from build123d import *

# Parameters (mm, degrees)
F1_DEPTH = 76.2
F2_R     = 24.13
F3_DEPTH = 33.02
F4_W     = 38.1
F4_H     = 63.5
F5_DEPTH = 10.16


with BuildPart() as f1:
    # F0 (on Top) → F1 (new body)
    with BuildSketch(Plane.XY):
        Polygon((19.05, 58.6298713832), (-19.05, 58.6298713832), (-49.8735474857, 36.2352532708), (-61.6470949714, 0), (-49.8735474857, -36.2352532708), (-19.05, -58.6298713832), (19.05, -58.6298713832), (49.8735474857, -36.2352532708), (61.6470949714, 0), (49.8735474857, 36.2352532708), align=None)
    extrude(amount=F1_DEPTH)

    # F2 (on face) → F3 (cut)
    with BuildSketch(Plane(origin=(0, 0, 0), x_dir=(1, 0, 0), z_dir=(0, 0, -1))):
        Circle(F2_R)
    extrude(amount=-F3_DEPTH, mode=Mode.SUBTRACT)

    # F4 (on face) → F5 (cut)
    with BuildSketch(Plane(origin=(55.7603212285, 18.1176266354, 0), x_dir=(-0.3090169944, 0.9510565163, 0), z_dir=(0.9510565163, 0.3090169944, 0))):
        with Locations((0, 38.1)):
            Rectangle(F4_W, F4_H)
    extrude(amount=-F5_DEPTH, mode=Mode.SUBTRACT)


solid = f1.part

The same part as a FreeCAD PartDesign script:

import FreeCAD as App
import Part
import Sketcher

V = App.Vector
Q = App.Units.Quantity

doc = App.newDocument("Part")
body = doc.addObject("PartDesign::Body", "Body")

sketch1 = doc.addObject("Sketcher::SketchObject", "Sketch")
body.addObject(sketch1)
sketch1.AttachmentSupport = (doc.XY_Plane, [""])
sketch1.MapMode = "FlatFace"
sketch1.addGeometry(Part.LineSegment(V(19.05, 58.629871, 0), V(-19.05, 58.629871, 0)), False)
sketch1.addGeometry(Part.LineSegment(V(-19.05, 58.629871, 0), V(-49.873547, 36.235253, 0)), False)
sketch1.addGeometry(Part.LineSegment(V(-49.873547, 36.235253, 0), V(-61.647095, 0, 0)), False)
sketch1.addGeometry(Part.LineSegment(V(-61.647095, 0, 0), V(-49.873547, -36.235253, 0)), False)
sketch1.addGeometry(Part.LineSegment(V(-49.873547, -36.235253, 0), V(-19.05, -58.629871, 0)), False)
sketch1.addGeometry(Part.LineSegment(V(-19.05, -58.629871, 0), V(19.05, -58.629871, 0)), False)
sketch1.addGeometry(Part.LineSegment(V(19.05, -58.629871, 0), V(49.873547, -36.235253, 0)), False)
sketch1.addGeometry(Part.LineSegment(V(49.873547, -36.235253, 0), V(61.647095, 0, 0)), False)
sketch1.addGeometry(Part.LineSegment(V(61.647095, 0, 0), V(49.873547, 36.235253, 0)), False)
sketch1.addGeometry(Part.LineSegment(V(49.873547, 36.235253, 0), V(19.05, 58.629871, 0)), False)
sketch1.addConstraint(Sketcher.Constraint("Coincident", 0, 2, 1, 1))
sketch1.addConstraint(Sketcher.Constraint("Coincident", 1, 2, 2, 1))
sketch1.addConstraint(Sketcher.Constraint("Coincident", 2, 2, 3, 1))
sketch1.addConstraint(Sketcher.Constraint("Coincident", 3, 2, 4, 1))
sketch1.addConstraint(Sketcher.Constraint("Coincident", 4, 2, 5, 1))
sketch1.addConstraint(Sketcher.Constraint("Coincident", 5, 2, 6, 1))
sketch1.addConstraint(Sketcher.Constraint("Coincident", 6, 2, 7, 1))
sketch1.addConstraint(Sketcher.Constraint("Coincident", 7, 2, 8, 1))
sketch1.addConstraint(Sketcher.Constraint("Coincident", 8, 2, 9, 1))
sketch1.addConstraint(Sketcher.Constraint("Coincident", 9, 2, 0, 1))
sketch1.addConstraint(Sketcher.Constraint("Horizontal", 0))
sketch1.addConstraint(Sketcher.Constraint("Horizontal", 5))
sketch1.addConstraint(Sketcher.Constraint("Symmetric", 0, 2, 5, 2, -1, 1))
sketch1.addConstraint(Sketcher.Constraint("Symmetric", 1, 2, 6, 2, -1, 1))
sketch1.addConstraint(Sketcher.Constraint("Symmetric", 2, 2, 7, 2, -1, 1))
sketch1.addConstraint(Sketcher.Constraint("Symmetric", 3, 2, 8, 2, -1, 1))
sketch1.addConstraint(Sketcher.Constraint("Symmetric", 3, 2, 6, 2, -2))
sketch1.addConstraint(Sketcher.Constraint("PointOnObject", 2, 2, -1))
sketch1.addConstraint(Sketcher.Constraint("Parallel", 4, 9))
sketch1.addConstraint(Sketcher.Constraint("Vertical", 0, 2, 4, 2))
sketch1.addConstraint(Sketcher.Constraint("Equal", 1, 2))
sketch1.addConstraint(Sketcher.Constraint("DistanceX", 0, 2, 0, 1, Q("1.5 in")))
sketch1.addConstraint(Sketcher.Constraint("Angle", 1, Q("-144 deg")))
sketch1.addConstraint(Sketcher.Constraint("Angle", 2, Q("-108 deg")))
sketch1.addConstraint(Sketcher.Constraint("Distance", 1, Q("1.5 in")))
pad1 = doc.addObject("PartDesign::Pad", "Pad")
body.addObject(pad1)
pad1.Profile = sketch1
pad1.Length = Q("3 in")

sketch2 = doc.addObject("Sketcher::SketchObject", "Sketch001")
body.addObject(sketch2)
sketch2.AttachmentSupport = (doc.XY_Plane, [""])
sketch2.MapMode = "FlatFace"
sketch2.addGeometry(Part.Circle(V(0, 0, 0), V(0, 0, 1), 24.13), False)
sketch2.addConstraint(Sketcher.Constraint("Coincident", 0, 3, -1, 1))
sketch2.addConstraint(Sketcher.Constraint("Diameter", 0, Q("1.9 in")))
pocket1 = doc.addObject("PartDesign::Pocket", "Pocket")
body.addObject(pocket1)
pocket1.Profile = sketch2
pocket1.Length = Q("1.3 in")
pocket1.Reversed = True

sketch3 = doc.addObject("Sketcher::SketchObject", "Sketch002")
body.addObject(sketch3)
sketch3.Placement = App.Placement(V(55.760321, 18.117627, 0), App.Rotation(V(-0.309016994, 0.951056516, 0), V(0, 0, 0.999999999), V(0.951056516, 0.309016994, 0), "ZXY"))
sketch3.addGeometry(Part.LineSegment(V(-19.05, 69.85, 0), V(-19.05, 6.35, 0)), False)
sketch3.addGeometry(Part.LineSegment(V(-19.05, 6.35, 0), V(19.05, 6.35, 0)), False)
sketch3.addGeometry(Part.LineSegment(V(19.05, 6.35, 0), V(19.05, 69.85, 0)), False)
sketch3.addGeometry(Part.LineSegment(V(19.05, 69.85, 0), V(-19.05, 69.85, 0)), False)
sketch3.addConstraint(Sketcher.Constraint("Coincident", 0, 2, 1, 1))
sketch3.addConstraint(Sketcher.Constraint("Coincident", 1, 2, 2, 1))
sketch3.addConstraint(Sketcher.Constraint("Coincident", 2, 2, 3, 1))
sketch3.addConstraint(Sketcher.Constraint("Coincident", 3, 2, 0, 1))
sketch3.addConstraint(Sketcher.Constraint("Vertical", 0))
sketch3.addConstraint(Sketcher.Constraint("Horizontal", 1))
sketch3.addConstraint(Sketcher.Constraint("Vertical", 2))
sketch3.addConstraint(Sketcher.Constraint("Horizontal", 3))
sketch3.addConstraint(Sketcher.Constraint("DistanceX", 1, 1, 1, 2, Q("1.5 in")))
sketch3.addConstraint(Sketcher.Constraint("DistanceY", 0, 2, 0, 1, Q("2.5 in")))
sketch3.addConstraint(Sketcher.Constraint("DistanceX", 0, 2, -1, 1, Q("0.75 in")))
sketch3.addConstraint(Sketcher.Constraint("DistanceY", -1, 1, 0, 2, Q("0.25 in")))
pocket2 = doc.addObject("PartDesign::Pocket", "Pocket001")
body.addObject(pocket2)
pocket2.Profile = sketch3
pocket2.Length = Q("0.4 in")

doc.recompute()
